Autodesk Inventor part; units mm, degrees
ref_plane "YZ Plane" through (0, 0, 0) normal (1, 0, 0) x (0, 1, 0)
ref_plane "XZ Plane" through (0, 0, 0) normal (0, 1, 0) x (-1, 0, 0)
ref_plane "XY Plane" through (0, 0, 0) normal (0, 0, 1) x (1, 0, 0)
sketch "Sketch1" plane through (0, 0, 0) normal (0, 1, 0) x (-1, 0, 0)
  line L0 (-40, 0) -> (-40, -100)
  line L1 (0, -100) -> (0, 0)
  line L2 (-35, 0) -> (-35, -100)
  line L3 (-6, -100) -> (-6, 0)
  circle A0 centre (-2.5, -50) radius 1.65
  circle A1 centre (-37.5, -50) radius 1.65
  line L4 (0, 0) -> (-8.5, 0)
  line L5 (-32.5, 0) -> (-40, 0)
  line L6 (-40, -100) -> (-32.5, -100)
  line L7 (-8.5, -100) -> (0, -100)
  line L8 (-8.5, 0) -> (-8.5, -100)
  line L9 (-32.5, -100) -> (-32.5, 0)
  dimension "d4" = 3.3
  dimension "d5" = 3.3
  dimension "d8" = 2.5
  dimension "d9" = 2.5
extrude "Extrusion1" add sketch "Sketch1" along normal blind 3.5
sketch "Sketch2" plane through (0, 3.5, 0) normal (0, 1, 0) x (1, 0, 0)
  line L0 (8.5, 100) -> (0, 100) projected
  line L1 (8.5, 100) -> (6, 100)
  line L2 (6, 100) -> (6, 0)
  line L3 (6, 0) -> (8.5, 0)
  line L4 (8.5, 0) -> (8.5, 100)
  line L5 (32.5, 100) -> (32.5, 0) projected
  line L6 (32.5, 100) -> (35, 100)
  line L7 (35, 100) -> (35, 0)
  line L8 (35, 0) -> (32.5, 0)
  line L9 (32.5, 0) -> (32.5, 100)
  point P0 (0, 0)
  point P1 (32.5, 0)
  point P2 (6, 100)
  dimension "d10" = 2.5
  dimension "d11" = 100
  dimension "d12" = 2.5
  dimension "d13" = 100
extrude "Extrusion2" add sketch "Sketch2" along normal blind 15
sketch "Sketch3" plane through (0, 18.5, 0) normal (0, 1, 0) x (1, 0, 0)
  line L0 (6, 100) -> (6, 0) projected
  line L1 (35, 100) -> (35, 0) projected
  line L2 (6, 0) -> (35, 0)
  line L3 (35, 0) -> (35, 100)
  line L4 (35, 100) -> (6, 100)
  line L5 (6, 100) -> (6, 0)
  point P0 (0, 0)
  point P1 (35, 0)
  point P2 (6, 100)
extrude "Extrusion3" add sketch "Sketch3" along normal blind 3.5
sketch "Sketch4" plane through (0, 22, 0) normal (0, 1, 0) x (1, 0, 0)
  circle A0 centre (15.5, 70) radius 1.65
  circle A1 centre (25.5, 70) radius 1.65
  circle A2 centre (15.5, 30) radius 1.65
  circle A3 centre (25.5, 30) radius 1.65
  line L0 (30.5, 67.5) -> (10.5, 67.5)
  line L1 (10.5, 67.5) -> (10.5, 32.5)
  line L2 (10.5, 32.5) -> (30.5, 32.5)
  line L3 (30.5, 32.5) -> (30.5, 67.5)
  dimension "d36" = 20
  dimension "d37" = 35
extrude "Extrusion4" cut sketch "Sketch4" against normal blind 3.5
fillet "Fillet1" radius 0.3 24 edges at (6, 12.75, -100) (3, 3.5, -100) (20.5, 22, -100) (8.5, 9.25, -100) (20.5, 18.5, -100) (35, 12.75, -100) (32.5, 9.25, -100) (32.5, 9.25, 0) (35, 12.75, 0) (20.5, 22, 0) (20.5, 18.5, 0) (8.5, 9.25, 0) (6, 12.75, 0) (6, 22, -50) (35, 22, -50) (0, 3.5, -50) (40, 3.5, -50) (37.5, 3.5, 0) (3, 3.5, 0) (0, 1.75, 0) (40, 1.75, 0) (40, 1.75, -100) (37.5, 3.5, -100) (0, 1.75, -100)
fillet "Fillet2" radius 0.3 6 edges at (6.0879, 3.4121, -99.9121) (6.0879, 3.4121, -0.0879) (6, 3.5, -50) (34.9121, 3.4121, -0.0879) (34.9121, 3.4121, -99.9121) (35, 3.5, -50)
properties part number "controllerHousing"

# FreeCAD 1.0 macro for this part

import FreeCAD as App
import Part
import Sketcher


def edges_at(feature, points):
    """Names of the edges that pass closest to the given points."""
    edges = feature.Shape.Edges
    near = lambda p: min(range(len(edges)), key=lambda i: edges[i].distToShape(Part.Vertex(*p))[0])
    return sorted({f"Edge{near(p) + 1}" for p in points})

doc = App.newDocument("Part")
body = doc.addObject("PartDesign::Body", "Body")
body.AllowCompound = True

# Sketch on XZ plane
sketch1 = body.newObject("Sketcher::SketchObject", "Sketch")
sketch1.AttachmentSupport = (doc.getObject("XZ_Plane"), [""])
sketch1.MapMode = "FlatFace"
sketch1.addGeometry(Part.LineSegment(App.Vector(40, 0, 0), App.Vector(40, -100, 0)), False)
sketch1.addGeometry(Part.LineSegment(App.Vector(40, -100, 0), App.Vector(32.5, -100, 0)), False)
sketch1.addGeometry(Part.LineSegment(App.Vector(32.5, -100, 0), App.Vector(32.5, 0, 0)), False)
sketch1.addGeometry(Part.LineSegment(App.Vector(32.5, 0, 0), App.Vector(40, 0, 0)), False)
sketch1.addGeometry(Part.Circle(App.Vector(37.5, -50, 0), App.Vector(0, 0, 1), 1.65), False)
sketch1.addGeometry(Part.LineSegment(App.Vector(0, -100, 0), App.Vector(0, 0, 0)), False)
sketch1.addGeometry(Part.LineSegment(App.Vector(0, 0, 0), App.Vector(8.5, 0, 0)), False)
sketch1.addGeometry(Part.LineSegment(App.Vector(8.5, 0, 0), App.Vector(8.5, -100, 0)), False)
sketch1.addGeometry(Part.LineSegment(App.Vector(8.5, -100, 0), App.Vector(0, -100, 0)), False)
sketch1.addGeometry(Part.Circle(App.Vector(2.5, -50, 0), App.Vector(0, 0, 1), 1.65), False)
sketch1.addConstraint(Sketcher.Constraint("Coincident", 0, 2, 1, 1))
sketch1.addConstraint(Sketcher.Constraint("Coincident", 1, 2, 2, 1))
sketch1.addConstraint(Sketcher.Constraint("Coincident", 2, 2, 3, 1))
sketch1.addConstraint(Sketcher.Constraint("Coincident", 3, 2, 0, 1))
sketch1.addConstraint(Sketcher.Constraint("Coincident", 5, 2, 6, 1))
sketch1.addConstraint(Sketcher.Constraint("Coincident", 6, 2, 7, 1))
sketch1.addConstraint(Sketcher.Constraint("Coincident", 7, 2, 8, 1))
sketch1.addConstraint(Sketcher.Constraint("Coincident", 8, 2, 5, 1))
sketch1.addConstraint(Sketcher.Constraint("Vertical", 0))
sketch1.addConstraint(Sketcher.Constraint("Horizontal", 1))
sketch1.addConstraint(Sketcher.Constraint("Vertical", 2))
sketch1.addConstraint(Sketcher.Constraint("Horizontal", 3))
sketch1.addConstraint(Sketcher.Constraint("Vertical", 5))
sketch1.addConstraint(Sketcher.Constraint("Horizontal", 6))
sketch1.addConstraint(Sketcher.Constraint("Vertical", 7))
sketch1.addConstraint(Sketcher.Constraint("Horizontal", 8))
sketch1.addConstraint(Sketcher.Constraint("Coincident", 5, 2, -1, 1))
sketch1.addConstraint(Sketcher.Constraint("Equal", 4, 9))
sketch1.addConstraint(Sketcher.Constraint("PointOnObject", 2, 2, -1))
sketch1.addConstraint(Sketcher.Constraint("Horizontal", 4, 3, 9, 3))
sketch1.addConstraint(Sketcher.Constraint("Horizontal", 1, 2, 7, 2))
sketch1.addConstraint(Sketcher.Constraint("Diameter", 4, 3.3))
sketch1.addConstraint(Sketcher.Constraint("DistanceX", -1, 1, 9, 3, 2.5))
sketch1.addConstraint(Sketcher.Constraint("DistanceX", 4, 3, 0, 2, 2.5))
sketch1.addConstraint(Sketcher.Constraint("DistanceY", 0, 2, 0, 1, 100.0))
sketch1.addConstraint(Sketcher.Constraint("DistanceX", 1, 2, 1, 1, 7.5))
sketch1.addConstraint(Sketcher.Constraint("DistanceX", 6, 1, 6, 2, 8.5))
sketch1.addConstraint(Sketcher.Constraint("DistanceY", 4, 3, -1, 1, 50.0))
sketch1.addConstraint(Sketcher.Constraint("DistanceX", -1, 1, 0, 2, 40.0))
pad1 = body.newObject("PartDesign::Pad", "Pad")
pad1.Profile = sketch1
pad1.Length = 3.5
pad1.Reversed = True

# Sketch on XZ plane
sketch2 = body.newObject("Sketcher::SketchObject", "Sketch001")
sketch2.AttachmentSupport = (doc.getObject("XZ_Plane"), [""])
sketch2.MapMode = "FlatFace"
sketch2.AttachmentOffset = App.Placement(App.Vector(0, 0, -3.5), App.Rotation())
sketch2.addGeometry(Part.LineSegment(App.Vector(8.5, 0, 0), App.Vector(8.5, -100, 0)), False)
sketch2.addGeometry(Part.LineSegment(App.Vector(8.5, -100, 0), App.Vector(6, -100, 0)), False)
sketch2.addGeometry(Part.LineSegment(App.Vector(6, -100, 0), App.Vector(6, 0, 0)), False)
sketch2.addGeometry(Part.LineSegment(App.Vector(6, 0, 0), App.Vector(8.5, 0, 0)), False)
sketch2.addGeometry(Part.LineSegment(App.Vector(35, -100, 0), App.Vector(32.5, -100, 0)), False)
sketch2.addGeometry(Part.LineSegment(App.Vector(32.5, -100, 0), App.Vector(32.5, 0, 0)), False)
sketch2.addGeometry(Part.LineSegment(App.Vector(32.5, 0, 0), App.Vector(35, 0, 0)), False)
sketch2.addGeometry(Part.LineSegment(App.Vector(35, 0, 0), App.Vector(35, -100, 0)), False)
sketch2.addConstraint(Sketcher.Constraint("Coincident", 0, 2, 1, 1))
sketch2.addConstraint(Sketcher.Constraint("Coincident", 1, 2, 2, 1))
sketch2.addConstraint(Sketcher.Constraint("Coincident", 2, 2, 3, 1))
sketch2.addConstraint(Sketcher.Constraint("Coincident", 3, 2, 0, 1))
sketch2.addConstraint(Sketcher.Constraint("Coincident", 4, 2, 5, 1))
sketch2.addConstraint(Sketcher.Constraint("Coincident", 5, 2, 6, 1))
sketch2.addConstraint(Sketcher.Constraint("Coincident", 6, 2, 7, 1))
sketch2.addConstraint(Sketcher.Constraint("Coincident", 7, 2, 4, 1))
sketch2.addConstraint(Sketcher.Constraint("Vertical", 0))
sketch2.addConstraint(Sketcher.Constraint("Horizontal", 1))
sketch2.addConstraint(Sketcher.Constraint("Vertical", 2))
sketch2.addConstraint(Sketcher.Constraint("Horizontal", 3))
sketch2.addConstraint(Sketcher.Constraint("Horizontal", 4))
sketch2.addConstraint(Sketcher.Constraint("Vertical", 5))
sketch2.addConstraint(Sketcher.Constraint("Horizontal", 6))
sketch2.addConstraint(Sketcher.Constraint("Vertical", 7))
sketch2.addConstraint(Sketcher.Constraint("PointOnObject", 2, 2, -1))
sketch2.addConstraint(Sketcher.Constraint("PointOnObject", 5, 2, -1))
sketch2.addConstraint(Sketcher.Constraint("Horizontal", 1, 2, 4, 2))
sketch2.addConstraint(Sketcher.Constraint("Equal", 3, 4))
sketch2.addConstraint(Sketcher.Constraint("DistanceY", 0, 2, 0, 1, 100.0))
sketch2.addConstraint(Sketcher.Constraint("DistanceX", 1, 2, 1, 1, 2.5))
sketch2.addConstraint(Sketcher.Constraint("DistanceX", -1, 1, 1, 2, 6.0))
sketch2.addConstraint(Sketcher.Constraint("DistanceX", -1, 1, 6, 2, 35.0))
pad2 = body.newObject("PartDesign::Pad", "Pad001")
pad2.Profile = sketch2
pad2.Length = 15
pad2.Reversed = True

# Sketch on XZ plane
sketch3 = body.newObject("Sketcher::SketchObject", "Sketch002")
sketch3.AttachmentSupport = (doc.getObject("XZ_Plane"), [""])
sketch3.MapMode = "FlatFace"
sketch3.AttachmentOffset = App.Placement(App.Vector(0, 0, -18.5), App.Rotation())
sketch3.addGeometry(Part.LineSegment(App.Vector(35, -100, 0), App.Vector(6, -100, 0)), False)
sketch3.addGeometry(Part.LineSegment(App.Vector(6, -100, 0), App.Vector(6, 0, 0)), False)
sketch3.addGeometry(Part.LineSegment(App.Vector(6, 0, 0), App.Vector(35, 0, 0)), False)
sketch3.addGeometry(Part.LineSegment(App.Vector(35, 0, 0), App.Vector(35, -100, 0)), False)
sketch3.addConstraint(Sketcher.Constraint("Coincident", 0, 2, 1, 1))
sketch3.addConstraint(Sketcher.Constraint("Coincident", 1, 2, 2, 1))
sketch3.addConstraint(Sketcher.Constraint("Coincident", 2, 2, 3, 1))
sketch3.addConstraint(Sketcher.Constraint("Coincident", 3, 2, 0, 1))
sketch3.addConstraint(Sketcher.Constraint("Horizontal", 0))
sketch3.addConstraint(Sketcher.Constraint("Vertical", 1))
sketch3.addConstraint(Sketcher.Constraint("Horizontal", 2))
sketch3.addConstraint(Sketcher.Constraint("Vertical", 3))
sketch3.addConstraint(Sketcher.Constraint("PointOnObject", 1, 2, -1))
sketch3.addConstraint(Sketcher.Constraint("DistanceX", 0, 2, 0, 1, 29.0))
sketch3.addConstraint(Sketcher.Constraint("DistanceY", 1, 1, 1, 2, 100.0))
sketch3.addConstraint(Sketcher.Constraint("DistanceX", -1, 1, 0, 2, 6.0))
pad3 = body.newObject("PartDesign::Pad", "Pad002")
pad3.Profile = sketch3
pad3.Length = 3.5
pad3.Reversed = True

# Sketch on XZ plane
sketch4 = body.newObject("Sketcher::SketchObject", "Sketch003")
sketch4.AttachmentSupport = (doc.getObject("XZ_Plane"), [""])
sketch4.MapMode = "FlatFace"
sketch4.AttachmentOffset = App.Placement(App.Vector(0, 0, -22), App.Rotation())
sketch4.addGeometry(Part.Circle(App.Vector(15.5, -70, 0), App.Vector(0, 0, 1), 1.65), False)
sketch4.addGeometry(Part.Circle(App.Vector(25.5, -70, 0), App.Vector(0, 0, 1), 1.65), False)
sketch4.addGeometry(Part.Circle(App.Vector(15.5, -30, 0), App.Vector(0, 0, 1), 1.65), False)
sketch4.addGeometry(Part.Circle(App.Vector(25.5, -30, 0), App.Vector(0, 0, 1), 1.65), False)
sketch4.addGeometry(Part.LineSegment(App.Vector(30.5, -32.5, 0), App.Vector(30.5, -67.5, 0)), False)
sketch4.addGeometry(Part.LineSegment(App.Vector(30.5, -67.5, 0), App.Vector(10.5, -67.5, 0)), False)
sketch4.addGeometry(Part.LineSegment(App.Vector(10.5, -67.5, 0), App.Vector(10.5, -32.5, 0)), False)
sketch4.addGeometry(Part.LineSegment(App.Vector(10.5, -32.5, 0), App.Vector(30.5, -32.5, 0)), False)
sketch4.addConstraint(Sketcher.Constraint("Coincident", 4, 2, 5, 1))
sketch4.addConstraint(Sketcher.Constraint("Coincident", 5, 2, 6, 1))
sketch4.addConstraint(Sketcher.Constraint("Coincident", 6, 2, 7, 1))
sketch4.addConstraint(Sketcher.Constraint("Coincident", 7, 2, 4, 1))
sketch4.addConstraint(Sketcher.Constraint("Vertical", 4))
sketch4.addConstraint(Sketcher.Constraint("Horizontal", 5))
sketch4.addConstraint(Sketcher.Constraint("Vertical", 6))
sketch4.addConstraint(Sketcher.Constraint("Horizontal", 7))
sketch4.addConstraint(Sketcher.Constraint("Equal", 0, 1))
sketch4.addConstraint(Sketcher.Constraint("Equal", 1, 2))
sketch4.addConstraint(Sketcher.Constraint("Equal", 2, 3))
sketch4.addConstraint(Sketcher.Constraint("Horizontal", 0, 3, 1, 3))
sketch4.addConstraint(Sketcher.Constraint("Horizontal", 2, 3, 3, 3))
sketch4.addConstraint(Sketcher.Constraint("Vertical", 0, 3, 2, 3))
sketch4.addConstraint(Sketcher.Constraint("Vertical", 1, 3, 3, 3))
sketch4.addConstraint(Sketcher.Constraint("DistanceX", 5, 2, 5, 1, 20.0))
sketch4.addConstraint(Sketcher.Constraint("DistanceY", 4, 2, 4, 1, 35.0))
sketch4.addConstraint(Sketcher.Constraint("Diameter", 0, 3.3))
sketch4.addConstraint(Sketcher.Constraint("DistanceY", 0, 3, -1, 1, 70.0))
sketch4.addConstraint(Sketcher.Constraint("DistanceY", 2, 3, -1, 1, 30.0))
sketch4.addConstraint(Sketcher.Constraint("DistanceX", 0, 3, 1, 3, 10.0))
sketch4.addConstraint(Sketcher.Constraint("DistanceX", 1, 3, 4, 2, 5.0))
sketch4.addConstraint(Sketcher.Constraint("DistanceX", -1, 1, 0, 3, 15.5))
sketch4.addConstraint(Sketcher.Constraint("DistanceY", 4, 2, -1, 1, 67.5))
pocket1 = body.newObject("PartDesign::Pocket", "Pocket")
pocket1.Profile = sketch4
pocket1.Length = 3.5
pocket1.Reversed = True
doc.recompute()

fillet = body.newObject("PartDesign::Fillet", "Fillet")
fillet.Base = (pocket1, edges_at(pocket1, [
    (6, 12.75, -100),
    (3, 3.5, -100),
    (20.5, 22, -100),
    (8.5, 9.25, -100),
    (20.5, 18.5, -100),
    (35, 12.75, -100),
    (32.5, 9.25, -100),
    (32.5, 9.25, 0),
    (35, 12.75, 0),
    (20.5, 22, 0),
    (20.5, 18.5, 0),
    (8.5, 9.25, 0),
    (6, 12.75, 0),
    (6, 22, -50),
    (35, 22, -50),
    (0, 3.5, -50),
    (40, 3.5, -50),
    (37.5, 3.5, 0),
    (3, 3.5, 0),
    (0, 1.75, 0),
    (40, 1.75, 0),
    (40, 1.75, -100),
    (37.5, 3.5, -100),
    (0, 1.75, -100),
]))
fillet.Radius = 0.3
doc.recompute()

fillet2 = body.newObject("PartDesign::Fillet", "Fillet001")
fillet2.Base = (fillet, edges_at(fillet, [
    (6.088, 3.412, -99.912),
    (6.088, 3.412, -0.088),
    (6, 3.5, -50),
    (34.912, 3.412, -0.088),
    (34.912, 3.412, -99.912),
    (35, 3.5, -50),
]))
fillet2.Radius = 0.3

doc.recompute()
